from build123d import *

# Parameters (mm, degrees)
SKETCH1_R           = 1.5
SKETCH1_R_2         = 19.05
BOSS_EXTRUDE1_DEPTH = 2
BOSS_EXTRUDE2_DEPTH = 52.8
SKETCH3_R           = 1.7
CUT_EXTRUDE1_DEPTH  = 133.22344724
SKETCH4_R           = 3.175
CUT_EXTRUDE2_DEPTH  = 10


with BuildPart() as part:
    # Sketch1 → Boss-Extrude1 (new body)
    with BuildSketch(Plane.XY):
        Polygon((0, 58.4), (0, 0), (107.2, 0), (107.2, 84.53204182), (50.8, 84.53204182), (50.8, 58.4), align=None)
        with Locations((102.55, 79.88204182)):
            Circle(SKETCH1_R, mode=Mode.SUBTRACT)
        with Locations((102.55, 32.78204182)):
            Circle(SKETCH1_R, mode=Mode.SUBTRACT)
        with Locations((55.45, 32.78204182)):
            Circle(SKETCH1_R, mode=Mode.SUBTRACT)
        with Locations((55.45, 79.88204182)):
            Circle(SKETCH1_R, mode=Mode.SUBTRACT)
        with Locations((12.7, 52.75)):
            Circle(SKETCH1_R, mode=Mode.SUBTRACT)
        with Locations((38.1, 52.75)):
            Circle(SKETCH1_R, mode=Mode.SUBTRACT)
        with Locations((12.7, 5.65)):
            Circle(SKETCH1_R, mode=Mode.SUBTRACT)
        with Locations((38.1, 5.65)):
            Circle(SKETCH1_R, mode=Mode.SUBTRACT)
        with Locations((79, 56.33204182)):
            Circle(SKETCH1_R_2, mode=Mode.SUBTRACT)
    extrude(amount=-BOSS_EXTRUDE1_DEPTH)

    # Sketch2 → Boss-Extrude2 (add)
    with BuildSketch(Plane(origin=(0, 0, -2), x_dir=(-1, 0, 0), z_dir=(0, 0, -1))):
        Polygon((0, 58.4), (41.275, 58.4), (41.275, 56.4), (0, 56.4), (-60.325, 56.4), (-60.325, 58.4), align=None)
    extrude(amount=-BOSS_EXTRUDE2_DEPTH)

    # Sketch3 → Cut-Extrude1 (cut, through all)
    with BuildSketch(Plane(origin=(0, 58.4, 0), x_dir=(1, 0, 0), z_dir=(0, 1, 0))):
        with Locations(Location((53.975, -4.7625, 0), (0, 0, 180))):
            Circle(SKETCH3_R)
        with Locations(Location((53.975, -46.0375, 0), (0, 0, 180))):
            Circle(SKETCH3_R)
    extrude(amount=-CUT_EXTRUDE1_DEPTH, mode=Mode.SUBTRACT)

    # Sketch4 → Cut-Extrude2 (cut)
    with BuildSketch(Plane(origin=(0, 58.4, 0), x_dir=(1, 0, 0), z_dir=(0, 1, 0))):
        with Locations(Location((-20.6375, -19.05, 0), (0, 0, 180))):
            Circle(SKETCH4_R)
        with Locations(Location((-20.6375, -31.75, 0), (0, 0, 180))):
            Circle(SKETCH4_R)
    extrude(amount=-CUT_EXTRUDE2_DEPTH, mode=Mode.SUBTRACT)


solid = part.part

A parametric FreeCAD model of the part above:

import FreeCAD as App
import Part
import Sketcher
Q = App.Units.Quantity

doc = App.newDocument("Part")
params = doc.addObject("Spreadsheet::Sheet", "Params")
for row, (alias, value) in enumerate([
    ("sketch1_diameter", "3 mm"),
    ("sketch1_diameter2", "38.1 mm"),
    ("sketch1_width", "107.2 mm"),
    ("sketch1_width2", "56.4 mm"),
    ("sketch1_height", "58.4 mm"),
    ("pad1_length", "2 mm"),
    ("sketch2_height", "2 mm"),
    ("sketch2_width", "101.6 mm"),
    ("pad2_length", "52.8 mm"),
    ("sketch3_diameter", "3.4 mm"),
    ("sketch4_diameter", "6.35 mm"),
    ("pocket2_length", "10 mm"),
], start=1):
    params.set(f"A{row}", alias)
    params.set(f"B{row}", "=" + value)
    params.setAlias(f"B{row}", alias)

body = doc.addObject("PartDesign::Body", "Body")

sketch1 = body.newObject("Sketcher::SketchObject", "Sketch")
sketch1.AttachmentSupport = (doc.getObject("XY_Plane"), [""])
sketch1.MapMode = "FlatFace"
sketch1.addGeometry([
    Part.LineSegment(App.Vector(0, 58.4, 0), App.Vector(0, 0, 0)),
    Part.LineSegment(App.Vector(0, 0, 0), App.Vector(107.2, 0, 0)),
    Part.LineSegment(App.Vector(107.2, 0, 0), App.Vector(107.2, 84.532042, 0)),
    Part.LineSegment(App.Vector(107.2, 84.532042, 0), App.Vector(50.8, 84.532042, 0)),
    Part.LineSegment(App.Vector(50.8, 84.532042, 0), App.Vector(50.8, 58.4, 0)),
    Part.LineSegment(App.Vector(50.8, 58.4, 0), App.Vector(0, 58.4, 0)),
    Part.Circle(App.Vector(12.7, 5.65, 0), App.Vector(0, 0, 1), 1.5),
    Part.Circle(App.Vector(38.1, 5.65, 0), App.Vector(0, 0, 1), 1.5),
    Part.Circle(App.Vector(55.45, 32.782042, 0), App.Vector(0, 0, 1), 1.5),
    Part.Circle(App.Vector(102.55, 32.782042, 0), App.Vector(0, 0, 1), 1.5),
    Part.Circle(App.Vector(12.7, 52.75, 0), App.Vector(0, 0, 1), 1.5),
    Part.Circle(App.Vector(38.1, 52.75, 0), App.Vector(0, 0, 1), 1.5),
    Part.Circle(App.Vector(55.45, 79.882042, 0), App.Vector(0, 0, 1), 1.5),
    Part.Circle(App.Vector(79, 56.332042, 0), App.Vector(0, 0, 1), 19.05),
    Part.Circle(App.Vector(102.55, 79.882042, 0), App.Vector(0, 0, 1), 1.5),
], False)
sketch1.addConstraint([
    Sketcher.Constraint("Coincident", 0, 2, 1, 1),
    Sketcher.Constraint("Coincident", 1, 2, 2, 1),
    Sketcher.Constraint("Coincident", 2, 2, 3, 1),
    Sketcher.Constraint("Coincident", 3, 2, 4, 1),
    Sketcher.Constraint("Coincident", 4, 2, 5, 1),
    Sketcher.Constraint("Coincident", 5, 2, 0, 1),
    Sketcher.Constraint("Vertical", 0),
    Sketcher.Constraint("Horizontal", 1),
    Sketcher.Constraint("Vertical", 2),
    Sketcher.Constraint("Horizontal", 3),
    Sketcher.Constraint("Vertical", 4),
    Sketcher.Constraint("Horizontal", 5),
    Sketcher.Constraint("Coincident", 0, 2, -1, 1),
    Sketcher.Constraint("Equal", 6, 7),
    Sketcher.Constraint("Equal", 7, 8),
    Sketcher.Constraint("Equal", 8, 9),
    Sketcher.Constraint("Equal", 9, 10),
    Sketcher.Constraint("Equal", 10, 11),
    Sketcher.Constraint("Equal", 11, 12),
    Sketcher.Constraint("Equal", 12, 14),
    Sketcher.Constraint("Horizontal", 6, 3, 7, 3),
    Sketcher.Constraint("Horizontal", 8, 3, 9, 3),
    Sketcher.Constraint("Horizontal", 10, 3, 11, 3),
    Sketcher.Constraint("Horizontal", 12, 3, 14, 3),
    Sketcher.Constraint("Vertical", 6, 3, 10, 3),
    Sketcher.Constraint("Vertical", 7, 3, 11, 3),
    Sketcher.Constraint("Vertical", 8, 3, 12, 3),
    Sketcher.Constraint("Vertical", 9, 3, 14, 3),
    Sketcher.Constraint("Diameter", 6, Q("3 mm")),
    Sketcher.Constraint("Diameter", 13, Q("38.1 mm")),
    Sketcher.Constraint("DistanceX", 1, 1, 1, 2, Q("107.2 mm")),
    Sketcher.Constraint("DistanceX", 3, 2, 3, 1, Q("56.4 mm")),
    Sketcher.Constraint("DistanceY", 0, 2, 0, 1, Q("58.4 mm")),
    Sketcher.Constraint("DistanceX", -1, 1, 13, 3, Q("79 mm")),
    Sketcher.Constraint("DistanceX", -1, 1, 6, 3, Q("12.7 mm")),
    Sketcher.Constraint("DistanceX", -1, 1, 7, 3, Q("38.1 mm")),
    Sketcher.Constraint("DistanceX", 8, 3, 9, 3, Q("47.1 mm")),
    Sketcher.Constraint("DistanceY", 6, 3, 10, 3, Q("47.1 mm")),
    Sketcher.Constraint("DistanceY", 8, 3, 12, 3, Q("47.1 mm")),
    Sketcher.Constraint("DistanceY", 13, 3, 2, 2, Q("28.2 mm")),
    Sketcher.Constraint("DistanceY", -1, 1, 6, 3, Q("5.65 mm")),
    Sketcher.Constraint("DistanceX", -1, 1, 8, 3, Q("55.45 mm")),
    Sketcher.Constraint("DistanceY", 8, 3, 13, 3, Q("23.55 mm")),
    Sketcher.Constraint("DistanceY", 2, 1, 2, 2, Q("84.532042 mm")),
])
sketch1.setExpression("Constraints[28]", "Params.sketch1_diameter")
sketch1.setExpression("Constraints[29]", "Params.sketch1_diameter2")
sketch1.setExpression("Constraints[30]", "Params.sketch1_width")
sketch1.setExpression("Constraints[31]", "Params.sketch1_width2")
sketch1.setExpression("Constraints[32]", "Params.sketch1_height")
pad1 = body.newObject("PartDesign::Pad", "Pad")
pad1.Profile = sketch1
pad1.setExpression("Length", "Params.pad1_length")
pad1.Reversed = True

sketch2 = body.newObject("Sketcher::SketchObject", "Sketch001")
sketch2.AttachmentSupport = (doc.getObject("XY_Plane"), [""])
sketch2.MapMode = "FlatFace"
sketch2.AttachmentOffset = App.Placement(App.Vector(0, 0, -2), App.Rotation())
sketch2.addGeometry([
    Part.LineSegment(App.Vector(-41.275, 58.4, 0), App.Vector(60.325, 58.4, 0)),
    Part.LineSegment(App.Vector(60.325, 58.4, 0), App.Vector(60.325, 56.4, 0)),
    Part.LineSegment(App.Vector(60.325, 56.4, 0), App.Vector(-41.275, 56.4, 0)),
    Part.LineSegment(App.Vector(-41.275, 56.4, 0), App.Vector(-41.275, 58.4, 0)),
], False)
sketch2.addConstraint([
    Sketcher.Constraint("Coincident", 0, 2, 1, 1),
    Sketcher.Constraint("Coincident", 1, 2, 2, 1),
    Sketcher.Constraint("Coincident", 2, 2, 3, 1),
    Sketcher.Constraint("Coincident", 3, 2, 0, 1),
    Sketcher.Constraint("Horizontal", 0),
    Sketcher.Constraint("Vertical", 1),
    Sketcher.Constraint("Horizontal", 2),
    Sketcher.Constraint("Vertical", 3),
    Sketcher.Constraint("DistanceY", 1, 2, 1, 1, Q("2 mm")),
    Sketcher.Constraint("DistanceX", 0, 1, 0, 2, Q("101.6 mm")),
    Sketcher.Constraint("DistanceY", -1, 1, 0, 2, Q("58.4 mm")),
    Sketcher.Constraint("DistanceX", -1, 1, 0, 2, Q("60.325 mm")),
])
sketch2.setExpression("Constraints[8]", "Params.sketch2_height")
sketch2.setExpression("Constraints[9]", "Params.sketch2_width")
pad2 = body.newObject("PartDesign::Pad", "Pad001")
pad2.Profile = sketch2
pad2.setExpression("Length", "Params.pad2_length")

sketch3 = body.newObject("Sketcher::SketchObject", "Sketch002")
sketch3.AttachmentSupport = (doc.getObject("XZ_Plane"), [""])
sketch3.MapMode = "FlatFace"
sketch3.AttachmentOffset = App.Placement(App.Vector(0, 0, -58.4), App.Rotation())
sketch3.addGeometry([
    Part.Circle(App.Vector(53.975, 4.7625, 0), App.Vector(0, 0, 1), 1.7),
    Part.Circle(App.Vector(53.975, 46.0375, 0), App.Vector(0, 0, 1), 1.7),
], False)
sketch3.addConstraint([
    Sketcher.Constraint("Equal", 0, 1),
    Sketcher.Constraint("Vertical", 0, 3, 1, 3),
    Sketcher.Constraint("Diameter", 0, Q("3.4 mm")),
    Sketcher.Constraint("DistanceX", -1, 1, 0, 3, Q("53.975 mm")),
    Sketcher.Constraint("DistanceY", 0, 3, 1, 3, Q("41.275 mm")),
    Sketcher.Constraint("DistanceY", -1, 1, 0, 3, Q("4.7625 mm")),
])
sketch3.setExpression("Constraints[2]", "Params.sketch3_diameter")
pocket1 = body.newObject("PartDesign::Pocket", "Pocket")
pocket1.Profile = sketch3
pocket1.Type = "ThroughAll"
pocket1.Reversed = True

sketch4 = body.newObject("Sketcher::SketchObject", "Sketch003")
sketch4.AttachmentSupport = (doc.getObject("XZ_Plane"), [""])
sketch4.MapMode = "FlatFace"
sketch4.AttachmentOffset = App.Placement(App.Vector(0, 0, -58.4), App.Rotation())
sketch4.addGeometry([
    Part.Circle(App.Vector(-20.6375, 19.05, 0), App.Vector(0, 0, 1), 3.175),
    Part.Circle(App.Vector(-20.6375, 31.75, 0), App.Vector(0, 0, 1), 3.175),
], False)
sketch4.addConstraint([
    Sketcher.Constraint("Equal", 0, 1),
    Sketcher.Constraint("Vertical", 0, 3, 1, 3),
    Sketcher.Constraint("Diameter", 0, Q("6.35 mm")),
    Sketcher.Constraint("DistanceY", 0, 3, 1, 3, Q("12.7 mm")),
    Sketcher.Constraint("DistanceY", -1, 1, 0, 3, Q("19.05 mm")),
    Sketcher.Constraint("DistanceX", 0, 3, -1, 1, Q("20.6375 mm")),
])
sketch4.setExpression("Constraints[2]", "Params.sketch4_diameter")
pocket2 = body.newObject("PartDesign::Pocket", "Pocket001")
pocket2.Profile = sketch4
pocket2.setExpression("Length", "Params.pocket2_length")
pocket2.Reversed = True

doc.recompute()
